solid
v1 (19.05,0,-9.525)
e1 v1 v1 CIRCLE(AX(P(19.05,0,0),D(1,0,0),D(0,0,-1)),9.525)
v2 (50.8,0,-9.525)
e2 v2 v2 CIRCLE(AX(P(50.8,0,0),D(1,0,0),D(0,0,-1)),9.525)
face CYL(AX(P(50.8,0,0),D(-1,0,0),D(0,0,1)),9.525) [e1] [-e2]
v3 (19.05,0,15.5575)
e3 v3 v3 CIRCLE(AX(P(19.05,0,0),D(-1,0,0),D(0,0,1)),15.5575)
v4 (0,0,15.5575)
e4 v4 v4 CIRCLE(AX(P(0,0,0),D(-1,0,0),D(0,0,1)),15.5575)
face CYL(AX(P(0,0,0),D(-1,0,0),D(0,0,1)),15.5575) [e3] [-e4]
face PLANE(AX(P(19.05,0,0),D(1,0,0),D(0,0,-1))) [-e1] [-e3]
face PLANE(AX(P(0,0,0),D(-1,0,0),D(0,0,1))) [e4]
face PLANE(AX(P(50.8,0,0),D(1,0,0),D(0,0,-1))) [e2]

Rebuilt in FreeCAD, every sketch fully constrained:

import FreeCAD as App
import Part
import Sketcher

V = App.Vector
Q = App.Units.Quantity


def add_polygon(sketch, points):
    """Adds a closed chain of lines whose ends are joined by coincident constraints."""
    first, n = sketch.GeometryCount, len(points)
    for a, b in zip(points, points[1:] + points[:1]):
        sketch.addGeometry(Part.LineSegment(App.Vector(*a, 0), App.Vector(*b, 0)), False)
    for i in range(n):
        sketch.addConstraint(Sketcher.Constraint("Coincident", first + i, 2, first + (i + 1) % n, 1))

doc = App.newDocument("Part")
body = doc.addObject("PartDesign::Body", "Body")

sketch1 = body.newObject("Sketcher::SketchObject", "Sketch")
sketch1.AttachmentSupport = (doc.getObject("XZ_Plane"), [""])
sketch1.MapMode = "FlatFace"
add_polygon(sketch1, [(19.05, 0), (19.05, -15.5575), (0, -15.5575), (0, 0)])
sketch1.addConstraint([
    Sketcher.Constraint("Vertical", 0),
    Sketcher.Constraint("Horizontal", 1),
    Sketcher.Constraint("Vertical", 2),
    Sketcher.Constraint("Horizontal", 3),
    Sketcher.Constraint("Coincident", 2, 2, -1, 1),
    Sketcher.Constraint("DistanceX", 1, 2, 1, 1, Q("0.75 in")),
    Sketcher.Constraint("DistanceY", 0, 2, 0, 1, Q("0.6125 in")),
])
revolution = body.newObject("PartDesign::Revolution", "Revolution")
revolution.Profile = sketch1
revolution.ReferenceAxis = (sketch1, ["H_Axis"])
revolution.Angle = 360

sketch2 = body.newObject("Sketcher::SketchObject", "Sketch001")
sketch2.AttachmentSupport = (doc.getObject("YZ_Plane"), [""])
sketch2.MapMode = "FlatFace"
sketch2.AttachmentOffset = App.Placement(V(0, 0, 0.75 * 25.4), App.Rotation())
sketch2.addGeometry(Part.Circle(V(0, 0, 0), V(0, 0, 1), 9.525), False)
sketch2.addConstraint([
    Sketcher.Constraint("Coincident", 0, 3, -1, 1),
    Sketcher.Constraint("Diameter", 0, Q("0.75 in")),
])
pad1 = body.newObject("PartDesign::Pad", "Pad")
pad1.Profile = sketch2
pad1.Length = Q("1.25 in")

doc.recompute()
